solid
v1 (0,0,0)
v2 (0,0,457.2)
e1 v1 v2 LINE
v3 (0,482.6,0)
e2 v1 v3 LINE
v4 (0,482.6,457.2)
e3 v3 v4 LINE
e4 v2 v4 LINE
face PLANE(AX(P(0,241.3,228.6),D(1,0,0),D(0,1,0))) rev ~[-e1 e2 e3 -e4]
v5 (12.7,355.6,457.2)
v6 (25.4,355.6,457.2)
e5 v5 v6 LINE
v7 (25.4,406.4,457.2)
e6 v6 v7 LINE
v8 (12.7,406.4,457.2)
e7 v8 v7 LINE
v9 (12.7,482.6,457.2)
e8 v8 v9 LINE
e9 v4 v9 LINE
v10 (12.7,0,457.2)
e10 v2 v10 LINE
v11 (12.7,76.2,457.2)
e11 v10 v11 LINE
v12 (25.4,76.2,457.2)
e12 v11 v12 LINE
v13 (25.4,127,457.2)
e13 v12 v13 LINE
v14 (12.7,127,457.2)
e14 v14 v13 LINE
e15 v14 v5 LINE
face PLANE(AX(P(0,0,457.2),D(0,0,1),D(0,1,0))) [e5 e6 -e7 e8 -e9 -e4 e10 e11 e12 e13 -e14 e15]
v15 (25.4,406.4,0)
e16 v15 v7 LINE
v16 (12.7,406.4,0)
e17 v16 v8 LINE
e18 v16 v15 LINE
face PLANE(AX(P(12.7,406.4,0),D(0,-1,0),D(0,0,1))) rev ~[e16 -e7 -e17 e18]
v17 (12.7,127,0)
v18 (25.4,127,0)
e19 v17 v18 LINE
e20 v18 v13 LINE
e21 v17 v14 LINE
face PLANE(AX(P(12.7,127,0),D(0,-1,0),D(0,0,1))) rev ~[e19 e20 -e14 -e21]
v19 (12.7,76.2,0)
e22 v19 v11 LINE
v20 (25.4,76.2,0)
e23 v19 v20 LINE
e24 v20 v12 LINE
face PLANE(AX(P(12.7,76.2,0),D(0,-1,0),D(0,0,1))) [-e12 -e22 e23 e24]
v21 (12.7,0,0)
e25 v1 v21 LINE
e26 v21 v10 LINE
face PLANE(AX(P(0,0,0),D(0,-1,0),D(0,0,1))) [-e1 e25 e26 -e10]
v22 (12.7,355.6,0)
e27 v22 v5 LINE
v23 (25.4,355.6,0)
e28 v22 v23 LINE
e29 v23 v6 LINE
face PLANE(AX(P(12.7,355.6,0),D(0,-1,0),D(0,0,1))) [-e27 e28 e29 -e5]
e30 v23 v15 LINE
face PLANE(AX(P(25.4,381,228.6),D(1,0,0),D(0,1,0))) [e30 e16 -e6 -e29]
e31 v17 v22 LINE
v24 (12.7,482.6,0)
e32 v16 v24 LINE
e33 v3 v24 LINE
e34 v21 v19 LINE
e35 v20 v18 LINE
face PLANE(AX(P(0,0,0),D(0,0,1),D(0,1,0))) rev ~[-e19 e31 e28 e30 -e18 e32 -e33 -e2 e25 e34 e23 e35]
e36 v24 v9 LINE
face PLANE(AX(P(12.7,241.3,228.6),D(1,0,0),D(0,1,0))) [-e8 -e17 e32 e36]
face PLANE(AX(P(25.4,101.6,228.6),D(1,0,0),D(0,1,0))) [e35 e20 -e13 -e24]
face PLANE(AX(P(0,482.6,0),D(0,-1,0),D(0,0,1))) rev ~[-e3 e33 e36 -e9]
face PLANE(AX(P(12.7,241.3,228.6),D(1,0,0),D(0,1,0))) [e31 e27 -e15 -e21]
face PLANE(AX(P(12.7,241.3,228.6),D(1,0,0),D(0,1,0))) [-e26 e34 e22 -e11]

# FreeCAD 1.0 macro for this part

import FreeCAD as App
import Part
import Sketcher

V = App.Vector
Q = App.Units.Quantity

doc = App.newDocument("Part")
body = doc.addObject("PartDesign::Body", "Body")

# Sketch on YZ plane
sketch1 = body.newObject("Sketcher::SketchObject", "Sketch")
sketch1.AttachmentSupport = (doc.getObject("YZ_Plane"), [""])
sketch1.MapMode = "FlatFace"
sketch1.addGeometry(Part.LineSegment(V(0, 457, 0), V(0, 0, 0)), False)
sketch1.addGeometry(Part.LineSegment(V(0, 0, 0), V(483, 0, 0)), False)
sketch1.addGeometry(Part.LineSegment(V(483, 0, 0), V(483, 457, 0)), False)
sketch1.addGeometry(Part.LineSegment(V(483, 457, 0), V(0, 457, 0)), False)
sketch1.addConstraint(Sketcher.Constraint("Coincident", 0, 2, 1, 1))
sketch1.addConstraint(Sketcher.Constraint("Coincident", 1, 2, 2, 1))
sketch1.addConstraint(Sketcher.Constraint("Coincident", 2, 2, 3, 1))
sketch1.addConstraint(Sketcher.Constraint("Coincident", 3, 2, 0, 1))
sketch1.addConstraint(Sketcher.Constraint("Vertical", 0))
sketch1.addConstraint(Sketcher.Constraint("Horizontal", 1))
sketch1.addConstraint(Sketcher.Constraint("Vertical", 2))
sketch1.addConstraint(Sketcher.Constraint("Horizontal", 3))
sketch1.addConstraint(Sketcher.Constraint("Coincident", 0, 2, -1, 1))
sketch1.addConstraint(Sketcher.Constraint("DistanceX", 1, 1, 1, 2, Q("19 in")))
sketch1.addConstraint(Sketcher.Constraint("DistanceY", 0, 2, 0, 1, Q("18 in")))
pad1 = body.newObject("PartDesign::Pad", "Pad")
pad1.Profile = sketch1
pad1.Length = Q("0.5 in")

# Sketch on YZ plane
sketch2 = body.newObject("Sketcher::SketchObject", "Sketch001")
sketch2.AttachmentSupport = (doc.getObject("YZ_Plane"), [""])
sketch2.MapMode = "FlatFace"
sketch2.AttachmentOffset = App.Placement(V(0, 0, 0.5 * 25.4), App.Rotation())
sketch2.addGeometry(Part.LineSegment(V(76, 457, 0), V(76, 0, 0)), False)
sketch2.addGeometry(Part.LineSegment(V(76, 0, 0), V(127, 0, 0)), False)
sketch2.addGeometry(Part.LineSegment(V(127, 0, 0), V(127, 457, 0)), False)
sketch2.addGeometry(Part.LineSegment(V(127, 457, 0), V(76, 457, 0)), False)
sketch2.addGeometry(Part.LineSegment(V(356, 457, 0), V(356, 0, 0)), False)
sketch2.addGeometry(Part.LineSegment(V(356, 0, 0), V(406, 0, 0)), False)
sketch2.addGeometry(Part.LineSegment(V(406, 0, 0), V(406, 457, 0)), False)
sketch2.addGeometry(Part.LineSegment(V(406, 457, 0), V(356, 457, 0)), False)
sketch2.addConstraint(Sketcher.Constraint("Coincident", 0, 2, 1, 1))
sketch2.addConstraint(Sketcher.Constraint("Coincident", 1, 2, 2, 1))
sketch2.addConstraint(Sketcher.Constraint("Coincident", 2, 2, 3, 1))
sketch2.addConstraint(Sketcher.Constraint("Coincident", 3, 2, 0, 1))
sketch2.addConstraint(Sketcher.Constraint("Coincident", 4, 2, 5, 1))
sketch2.addConstraint(Sketcher.Constraint("Coincident", 5, 2, 6, 1))
sketch2.addConstraint(Sketcher.Constraint("Coincident", 6, 2, 7, 1))
sketch2.addConstraint(Sketcher.Constraint("Coincident", 7, 2, 4, 1))
sketch2.addConstraint(Sketcher.Constraint("Vertical", 0))
sketch2.addConstraint(Sketcher.Constraint("Horizontal", 1))
sketch2.addConstraint(Sketcher.Constraint("Vertical", 2))
sketch2.addConstraint(Sketcher.Constraint("Horizontal", 3))
sketch2.addConstraint(Sketcher.Constraint("Vertical", 4))
sketch2.addConstraint(Sketcher.Constraint("Horizontal", 5))
sketch2.addConstraint(Sketcher.Constraint("Vertical", 6))
sketch2.addConstraint(Sketcher.Constraint("Horizontal", 7))
sketch2.addConstraint(Sketcher.Constraint("PointOnObject", 0, 2, -1))
sketch2.addConstraint(Sketcher.Constraint("PointOnObject", 4, 2, -1))
sketch2.addConstraint(Sketcher.Constraint("Horizontal", 3, 2, 6, 2))
sketch2.addConstraint(Sketcher.Constraint("Equal", 3, 5))
sketch2.addConstraint(Sketcher.Constraint("DistanceX", 1, 1, 1, 2, Q("2 in")))
sketch2.addConstraint(Sketcher.Constraint("DistanceY", 0, 2, 0, 1, Q("18 in")))
sketch2.addConstraint(Sketcher.Constraint("DistanceX", -1, 1, 0, 2, Q("3 in")))
sketch2.addConstraint(Sketcher.Constraint("DistanceX", -1, 1, 4, 2, Q("14 in")))
pad2 = body.newObject("PartDesign::Pad", "Pad001")
pad2.Profile = sketch2
pad2.Length = Q("0.5 in")

doc.recompute()
